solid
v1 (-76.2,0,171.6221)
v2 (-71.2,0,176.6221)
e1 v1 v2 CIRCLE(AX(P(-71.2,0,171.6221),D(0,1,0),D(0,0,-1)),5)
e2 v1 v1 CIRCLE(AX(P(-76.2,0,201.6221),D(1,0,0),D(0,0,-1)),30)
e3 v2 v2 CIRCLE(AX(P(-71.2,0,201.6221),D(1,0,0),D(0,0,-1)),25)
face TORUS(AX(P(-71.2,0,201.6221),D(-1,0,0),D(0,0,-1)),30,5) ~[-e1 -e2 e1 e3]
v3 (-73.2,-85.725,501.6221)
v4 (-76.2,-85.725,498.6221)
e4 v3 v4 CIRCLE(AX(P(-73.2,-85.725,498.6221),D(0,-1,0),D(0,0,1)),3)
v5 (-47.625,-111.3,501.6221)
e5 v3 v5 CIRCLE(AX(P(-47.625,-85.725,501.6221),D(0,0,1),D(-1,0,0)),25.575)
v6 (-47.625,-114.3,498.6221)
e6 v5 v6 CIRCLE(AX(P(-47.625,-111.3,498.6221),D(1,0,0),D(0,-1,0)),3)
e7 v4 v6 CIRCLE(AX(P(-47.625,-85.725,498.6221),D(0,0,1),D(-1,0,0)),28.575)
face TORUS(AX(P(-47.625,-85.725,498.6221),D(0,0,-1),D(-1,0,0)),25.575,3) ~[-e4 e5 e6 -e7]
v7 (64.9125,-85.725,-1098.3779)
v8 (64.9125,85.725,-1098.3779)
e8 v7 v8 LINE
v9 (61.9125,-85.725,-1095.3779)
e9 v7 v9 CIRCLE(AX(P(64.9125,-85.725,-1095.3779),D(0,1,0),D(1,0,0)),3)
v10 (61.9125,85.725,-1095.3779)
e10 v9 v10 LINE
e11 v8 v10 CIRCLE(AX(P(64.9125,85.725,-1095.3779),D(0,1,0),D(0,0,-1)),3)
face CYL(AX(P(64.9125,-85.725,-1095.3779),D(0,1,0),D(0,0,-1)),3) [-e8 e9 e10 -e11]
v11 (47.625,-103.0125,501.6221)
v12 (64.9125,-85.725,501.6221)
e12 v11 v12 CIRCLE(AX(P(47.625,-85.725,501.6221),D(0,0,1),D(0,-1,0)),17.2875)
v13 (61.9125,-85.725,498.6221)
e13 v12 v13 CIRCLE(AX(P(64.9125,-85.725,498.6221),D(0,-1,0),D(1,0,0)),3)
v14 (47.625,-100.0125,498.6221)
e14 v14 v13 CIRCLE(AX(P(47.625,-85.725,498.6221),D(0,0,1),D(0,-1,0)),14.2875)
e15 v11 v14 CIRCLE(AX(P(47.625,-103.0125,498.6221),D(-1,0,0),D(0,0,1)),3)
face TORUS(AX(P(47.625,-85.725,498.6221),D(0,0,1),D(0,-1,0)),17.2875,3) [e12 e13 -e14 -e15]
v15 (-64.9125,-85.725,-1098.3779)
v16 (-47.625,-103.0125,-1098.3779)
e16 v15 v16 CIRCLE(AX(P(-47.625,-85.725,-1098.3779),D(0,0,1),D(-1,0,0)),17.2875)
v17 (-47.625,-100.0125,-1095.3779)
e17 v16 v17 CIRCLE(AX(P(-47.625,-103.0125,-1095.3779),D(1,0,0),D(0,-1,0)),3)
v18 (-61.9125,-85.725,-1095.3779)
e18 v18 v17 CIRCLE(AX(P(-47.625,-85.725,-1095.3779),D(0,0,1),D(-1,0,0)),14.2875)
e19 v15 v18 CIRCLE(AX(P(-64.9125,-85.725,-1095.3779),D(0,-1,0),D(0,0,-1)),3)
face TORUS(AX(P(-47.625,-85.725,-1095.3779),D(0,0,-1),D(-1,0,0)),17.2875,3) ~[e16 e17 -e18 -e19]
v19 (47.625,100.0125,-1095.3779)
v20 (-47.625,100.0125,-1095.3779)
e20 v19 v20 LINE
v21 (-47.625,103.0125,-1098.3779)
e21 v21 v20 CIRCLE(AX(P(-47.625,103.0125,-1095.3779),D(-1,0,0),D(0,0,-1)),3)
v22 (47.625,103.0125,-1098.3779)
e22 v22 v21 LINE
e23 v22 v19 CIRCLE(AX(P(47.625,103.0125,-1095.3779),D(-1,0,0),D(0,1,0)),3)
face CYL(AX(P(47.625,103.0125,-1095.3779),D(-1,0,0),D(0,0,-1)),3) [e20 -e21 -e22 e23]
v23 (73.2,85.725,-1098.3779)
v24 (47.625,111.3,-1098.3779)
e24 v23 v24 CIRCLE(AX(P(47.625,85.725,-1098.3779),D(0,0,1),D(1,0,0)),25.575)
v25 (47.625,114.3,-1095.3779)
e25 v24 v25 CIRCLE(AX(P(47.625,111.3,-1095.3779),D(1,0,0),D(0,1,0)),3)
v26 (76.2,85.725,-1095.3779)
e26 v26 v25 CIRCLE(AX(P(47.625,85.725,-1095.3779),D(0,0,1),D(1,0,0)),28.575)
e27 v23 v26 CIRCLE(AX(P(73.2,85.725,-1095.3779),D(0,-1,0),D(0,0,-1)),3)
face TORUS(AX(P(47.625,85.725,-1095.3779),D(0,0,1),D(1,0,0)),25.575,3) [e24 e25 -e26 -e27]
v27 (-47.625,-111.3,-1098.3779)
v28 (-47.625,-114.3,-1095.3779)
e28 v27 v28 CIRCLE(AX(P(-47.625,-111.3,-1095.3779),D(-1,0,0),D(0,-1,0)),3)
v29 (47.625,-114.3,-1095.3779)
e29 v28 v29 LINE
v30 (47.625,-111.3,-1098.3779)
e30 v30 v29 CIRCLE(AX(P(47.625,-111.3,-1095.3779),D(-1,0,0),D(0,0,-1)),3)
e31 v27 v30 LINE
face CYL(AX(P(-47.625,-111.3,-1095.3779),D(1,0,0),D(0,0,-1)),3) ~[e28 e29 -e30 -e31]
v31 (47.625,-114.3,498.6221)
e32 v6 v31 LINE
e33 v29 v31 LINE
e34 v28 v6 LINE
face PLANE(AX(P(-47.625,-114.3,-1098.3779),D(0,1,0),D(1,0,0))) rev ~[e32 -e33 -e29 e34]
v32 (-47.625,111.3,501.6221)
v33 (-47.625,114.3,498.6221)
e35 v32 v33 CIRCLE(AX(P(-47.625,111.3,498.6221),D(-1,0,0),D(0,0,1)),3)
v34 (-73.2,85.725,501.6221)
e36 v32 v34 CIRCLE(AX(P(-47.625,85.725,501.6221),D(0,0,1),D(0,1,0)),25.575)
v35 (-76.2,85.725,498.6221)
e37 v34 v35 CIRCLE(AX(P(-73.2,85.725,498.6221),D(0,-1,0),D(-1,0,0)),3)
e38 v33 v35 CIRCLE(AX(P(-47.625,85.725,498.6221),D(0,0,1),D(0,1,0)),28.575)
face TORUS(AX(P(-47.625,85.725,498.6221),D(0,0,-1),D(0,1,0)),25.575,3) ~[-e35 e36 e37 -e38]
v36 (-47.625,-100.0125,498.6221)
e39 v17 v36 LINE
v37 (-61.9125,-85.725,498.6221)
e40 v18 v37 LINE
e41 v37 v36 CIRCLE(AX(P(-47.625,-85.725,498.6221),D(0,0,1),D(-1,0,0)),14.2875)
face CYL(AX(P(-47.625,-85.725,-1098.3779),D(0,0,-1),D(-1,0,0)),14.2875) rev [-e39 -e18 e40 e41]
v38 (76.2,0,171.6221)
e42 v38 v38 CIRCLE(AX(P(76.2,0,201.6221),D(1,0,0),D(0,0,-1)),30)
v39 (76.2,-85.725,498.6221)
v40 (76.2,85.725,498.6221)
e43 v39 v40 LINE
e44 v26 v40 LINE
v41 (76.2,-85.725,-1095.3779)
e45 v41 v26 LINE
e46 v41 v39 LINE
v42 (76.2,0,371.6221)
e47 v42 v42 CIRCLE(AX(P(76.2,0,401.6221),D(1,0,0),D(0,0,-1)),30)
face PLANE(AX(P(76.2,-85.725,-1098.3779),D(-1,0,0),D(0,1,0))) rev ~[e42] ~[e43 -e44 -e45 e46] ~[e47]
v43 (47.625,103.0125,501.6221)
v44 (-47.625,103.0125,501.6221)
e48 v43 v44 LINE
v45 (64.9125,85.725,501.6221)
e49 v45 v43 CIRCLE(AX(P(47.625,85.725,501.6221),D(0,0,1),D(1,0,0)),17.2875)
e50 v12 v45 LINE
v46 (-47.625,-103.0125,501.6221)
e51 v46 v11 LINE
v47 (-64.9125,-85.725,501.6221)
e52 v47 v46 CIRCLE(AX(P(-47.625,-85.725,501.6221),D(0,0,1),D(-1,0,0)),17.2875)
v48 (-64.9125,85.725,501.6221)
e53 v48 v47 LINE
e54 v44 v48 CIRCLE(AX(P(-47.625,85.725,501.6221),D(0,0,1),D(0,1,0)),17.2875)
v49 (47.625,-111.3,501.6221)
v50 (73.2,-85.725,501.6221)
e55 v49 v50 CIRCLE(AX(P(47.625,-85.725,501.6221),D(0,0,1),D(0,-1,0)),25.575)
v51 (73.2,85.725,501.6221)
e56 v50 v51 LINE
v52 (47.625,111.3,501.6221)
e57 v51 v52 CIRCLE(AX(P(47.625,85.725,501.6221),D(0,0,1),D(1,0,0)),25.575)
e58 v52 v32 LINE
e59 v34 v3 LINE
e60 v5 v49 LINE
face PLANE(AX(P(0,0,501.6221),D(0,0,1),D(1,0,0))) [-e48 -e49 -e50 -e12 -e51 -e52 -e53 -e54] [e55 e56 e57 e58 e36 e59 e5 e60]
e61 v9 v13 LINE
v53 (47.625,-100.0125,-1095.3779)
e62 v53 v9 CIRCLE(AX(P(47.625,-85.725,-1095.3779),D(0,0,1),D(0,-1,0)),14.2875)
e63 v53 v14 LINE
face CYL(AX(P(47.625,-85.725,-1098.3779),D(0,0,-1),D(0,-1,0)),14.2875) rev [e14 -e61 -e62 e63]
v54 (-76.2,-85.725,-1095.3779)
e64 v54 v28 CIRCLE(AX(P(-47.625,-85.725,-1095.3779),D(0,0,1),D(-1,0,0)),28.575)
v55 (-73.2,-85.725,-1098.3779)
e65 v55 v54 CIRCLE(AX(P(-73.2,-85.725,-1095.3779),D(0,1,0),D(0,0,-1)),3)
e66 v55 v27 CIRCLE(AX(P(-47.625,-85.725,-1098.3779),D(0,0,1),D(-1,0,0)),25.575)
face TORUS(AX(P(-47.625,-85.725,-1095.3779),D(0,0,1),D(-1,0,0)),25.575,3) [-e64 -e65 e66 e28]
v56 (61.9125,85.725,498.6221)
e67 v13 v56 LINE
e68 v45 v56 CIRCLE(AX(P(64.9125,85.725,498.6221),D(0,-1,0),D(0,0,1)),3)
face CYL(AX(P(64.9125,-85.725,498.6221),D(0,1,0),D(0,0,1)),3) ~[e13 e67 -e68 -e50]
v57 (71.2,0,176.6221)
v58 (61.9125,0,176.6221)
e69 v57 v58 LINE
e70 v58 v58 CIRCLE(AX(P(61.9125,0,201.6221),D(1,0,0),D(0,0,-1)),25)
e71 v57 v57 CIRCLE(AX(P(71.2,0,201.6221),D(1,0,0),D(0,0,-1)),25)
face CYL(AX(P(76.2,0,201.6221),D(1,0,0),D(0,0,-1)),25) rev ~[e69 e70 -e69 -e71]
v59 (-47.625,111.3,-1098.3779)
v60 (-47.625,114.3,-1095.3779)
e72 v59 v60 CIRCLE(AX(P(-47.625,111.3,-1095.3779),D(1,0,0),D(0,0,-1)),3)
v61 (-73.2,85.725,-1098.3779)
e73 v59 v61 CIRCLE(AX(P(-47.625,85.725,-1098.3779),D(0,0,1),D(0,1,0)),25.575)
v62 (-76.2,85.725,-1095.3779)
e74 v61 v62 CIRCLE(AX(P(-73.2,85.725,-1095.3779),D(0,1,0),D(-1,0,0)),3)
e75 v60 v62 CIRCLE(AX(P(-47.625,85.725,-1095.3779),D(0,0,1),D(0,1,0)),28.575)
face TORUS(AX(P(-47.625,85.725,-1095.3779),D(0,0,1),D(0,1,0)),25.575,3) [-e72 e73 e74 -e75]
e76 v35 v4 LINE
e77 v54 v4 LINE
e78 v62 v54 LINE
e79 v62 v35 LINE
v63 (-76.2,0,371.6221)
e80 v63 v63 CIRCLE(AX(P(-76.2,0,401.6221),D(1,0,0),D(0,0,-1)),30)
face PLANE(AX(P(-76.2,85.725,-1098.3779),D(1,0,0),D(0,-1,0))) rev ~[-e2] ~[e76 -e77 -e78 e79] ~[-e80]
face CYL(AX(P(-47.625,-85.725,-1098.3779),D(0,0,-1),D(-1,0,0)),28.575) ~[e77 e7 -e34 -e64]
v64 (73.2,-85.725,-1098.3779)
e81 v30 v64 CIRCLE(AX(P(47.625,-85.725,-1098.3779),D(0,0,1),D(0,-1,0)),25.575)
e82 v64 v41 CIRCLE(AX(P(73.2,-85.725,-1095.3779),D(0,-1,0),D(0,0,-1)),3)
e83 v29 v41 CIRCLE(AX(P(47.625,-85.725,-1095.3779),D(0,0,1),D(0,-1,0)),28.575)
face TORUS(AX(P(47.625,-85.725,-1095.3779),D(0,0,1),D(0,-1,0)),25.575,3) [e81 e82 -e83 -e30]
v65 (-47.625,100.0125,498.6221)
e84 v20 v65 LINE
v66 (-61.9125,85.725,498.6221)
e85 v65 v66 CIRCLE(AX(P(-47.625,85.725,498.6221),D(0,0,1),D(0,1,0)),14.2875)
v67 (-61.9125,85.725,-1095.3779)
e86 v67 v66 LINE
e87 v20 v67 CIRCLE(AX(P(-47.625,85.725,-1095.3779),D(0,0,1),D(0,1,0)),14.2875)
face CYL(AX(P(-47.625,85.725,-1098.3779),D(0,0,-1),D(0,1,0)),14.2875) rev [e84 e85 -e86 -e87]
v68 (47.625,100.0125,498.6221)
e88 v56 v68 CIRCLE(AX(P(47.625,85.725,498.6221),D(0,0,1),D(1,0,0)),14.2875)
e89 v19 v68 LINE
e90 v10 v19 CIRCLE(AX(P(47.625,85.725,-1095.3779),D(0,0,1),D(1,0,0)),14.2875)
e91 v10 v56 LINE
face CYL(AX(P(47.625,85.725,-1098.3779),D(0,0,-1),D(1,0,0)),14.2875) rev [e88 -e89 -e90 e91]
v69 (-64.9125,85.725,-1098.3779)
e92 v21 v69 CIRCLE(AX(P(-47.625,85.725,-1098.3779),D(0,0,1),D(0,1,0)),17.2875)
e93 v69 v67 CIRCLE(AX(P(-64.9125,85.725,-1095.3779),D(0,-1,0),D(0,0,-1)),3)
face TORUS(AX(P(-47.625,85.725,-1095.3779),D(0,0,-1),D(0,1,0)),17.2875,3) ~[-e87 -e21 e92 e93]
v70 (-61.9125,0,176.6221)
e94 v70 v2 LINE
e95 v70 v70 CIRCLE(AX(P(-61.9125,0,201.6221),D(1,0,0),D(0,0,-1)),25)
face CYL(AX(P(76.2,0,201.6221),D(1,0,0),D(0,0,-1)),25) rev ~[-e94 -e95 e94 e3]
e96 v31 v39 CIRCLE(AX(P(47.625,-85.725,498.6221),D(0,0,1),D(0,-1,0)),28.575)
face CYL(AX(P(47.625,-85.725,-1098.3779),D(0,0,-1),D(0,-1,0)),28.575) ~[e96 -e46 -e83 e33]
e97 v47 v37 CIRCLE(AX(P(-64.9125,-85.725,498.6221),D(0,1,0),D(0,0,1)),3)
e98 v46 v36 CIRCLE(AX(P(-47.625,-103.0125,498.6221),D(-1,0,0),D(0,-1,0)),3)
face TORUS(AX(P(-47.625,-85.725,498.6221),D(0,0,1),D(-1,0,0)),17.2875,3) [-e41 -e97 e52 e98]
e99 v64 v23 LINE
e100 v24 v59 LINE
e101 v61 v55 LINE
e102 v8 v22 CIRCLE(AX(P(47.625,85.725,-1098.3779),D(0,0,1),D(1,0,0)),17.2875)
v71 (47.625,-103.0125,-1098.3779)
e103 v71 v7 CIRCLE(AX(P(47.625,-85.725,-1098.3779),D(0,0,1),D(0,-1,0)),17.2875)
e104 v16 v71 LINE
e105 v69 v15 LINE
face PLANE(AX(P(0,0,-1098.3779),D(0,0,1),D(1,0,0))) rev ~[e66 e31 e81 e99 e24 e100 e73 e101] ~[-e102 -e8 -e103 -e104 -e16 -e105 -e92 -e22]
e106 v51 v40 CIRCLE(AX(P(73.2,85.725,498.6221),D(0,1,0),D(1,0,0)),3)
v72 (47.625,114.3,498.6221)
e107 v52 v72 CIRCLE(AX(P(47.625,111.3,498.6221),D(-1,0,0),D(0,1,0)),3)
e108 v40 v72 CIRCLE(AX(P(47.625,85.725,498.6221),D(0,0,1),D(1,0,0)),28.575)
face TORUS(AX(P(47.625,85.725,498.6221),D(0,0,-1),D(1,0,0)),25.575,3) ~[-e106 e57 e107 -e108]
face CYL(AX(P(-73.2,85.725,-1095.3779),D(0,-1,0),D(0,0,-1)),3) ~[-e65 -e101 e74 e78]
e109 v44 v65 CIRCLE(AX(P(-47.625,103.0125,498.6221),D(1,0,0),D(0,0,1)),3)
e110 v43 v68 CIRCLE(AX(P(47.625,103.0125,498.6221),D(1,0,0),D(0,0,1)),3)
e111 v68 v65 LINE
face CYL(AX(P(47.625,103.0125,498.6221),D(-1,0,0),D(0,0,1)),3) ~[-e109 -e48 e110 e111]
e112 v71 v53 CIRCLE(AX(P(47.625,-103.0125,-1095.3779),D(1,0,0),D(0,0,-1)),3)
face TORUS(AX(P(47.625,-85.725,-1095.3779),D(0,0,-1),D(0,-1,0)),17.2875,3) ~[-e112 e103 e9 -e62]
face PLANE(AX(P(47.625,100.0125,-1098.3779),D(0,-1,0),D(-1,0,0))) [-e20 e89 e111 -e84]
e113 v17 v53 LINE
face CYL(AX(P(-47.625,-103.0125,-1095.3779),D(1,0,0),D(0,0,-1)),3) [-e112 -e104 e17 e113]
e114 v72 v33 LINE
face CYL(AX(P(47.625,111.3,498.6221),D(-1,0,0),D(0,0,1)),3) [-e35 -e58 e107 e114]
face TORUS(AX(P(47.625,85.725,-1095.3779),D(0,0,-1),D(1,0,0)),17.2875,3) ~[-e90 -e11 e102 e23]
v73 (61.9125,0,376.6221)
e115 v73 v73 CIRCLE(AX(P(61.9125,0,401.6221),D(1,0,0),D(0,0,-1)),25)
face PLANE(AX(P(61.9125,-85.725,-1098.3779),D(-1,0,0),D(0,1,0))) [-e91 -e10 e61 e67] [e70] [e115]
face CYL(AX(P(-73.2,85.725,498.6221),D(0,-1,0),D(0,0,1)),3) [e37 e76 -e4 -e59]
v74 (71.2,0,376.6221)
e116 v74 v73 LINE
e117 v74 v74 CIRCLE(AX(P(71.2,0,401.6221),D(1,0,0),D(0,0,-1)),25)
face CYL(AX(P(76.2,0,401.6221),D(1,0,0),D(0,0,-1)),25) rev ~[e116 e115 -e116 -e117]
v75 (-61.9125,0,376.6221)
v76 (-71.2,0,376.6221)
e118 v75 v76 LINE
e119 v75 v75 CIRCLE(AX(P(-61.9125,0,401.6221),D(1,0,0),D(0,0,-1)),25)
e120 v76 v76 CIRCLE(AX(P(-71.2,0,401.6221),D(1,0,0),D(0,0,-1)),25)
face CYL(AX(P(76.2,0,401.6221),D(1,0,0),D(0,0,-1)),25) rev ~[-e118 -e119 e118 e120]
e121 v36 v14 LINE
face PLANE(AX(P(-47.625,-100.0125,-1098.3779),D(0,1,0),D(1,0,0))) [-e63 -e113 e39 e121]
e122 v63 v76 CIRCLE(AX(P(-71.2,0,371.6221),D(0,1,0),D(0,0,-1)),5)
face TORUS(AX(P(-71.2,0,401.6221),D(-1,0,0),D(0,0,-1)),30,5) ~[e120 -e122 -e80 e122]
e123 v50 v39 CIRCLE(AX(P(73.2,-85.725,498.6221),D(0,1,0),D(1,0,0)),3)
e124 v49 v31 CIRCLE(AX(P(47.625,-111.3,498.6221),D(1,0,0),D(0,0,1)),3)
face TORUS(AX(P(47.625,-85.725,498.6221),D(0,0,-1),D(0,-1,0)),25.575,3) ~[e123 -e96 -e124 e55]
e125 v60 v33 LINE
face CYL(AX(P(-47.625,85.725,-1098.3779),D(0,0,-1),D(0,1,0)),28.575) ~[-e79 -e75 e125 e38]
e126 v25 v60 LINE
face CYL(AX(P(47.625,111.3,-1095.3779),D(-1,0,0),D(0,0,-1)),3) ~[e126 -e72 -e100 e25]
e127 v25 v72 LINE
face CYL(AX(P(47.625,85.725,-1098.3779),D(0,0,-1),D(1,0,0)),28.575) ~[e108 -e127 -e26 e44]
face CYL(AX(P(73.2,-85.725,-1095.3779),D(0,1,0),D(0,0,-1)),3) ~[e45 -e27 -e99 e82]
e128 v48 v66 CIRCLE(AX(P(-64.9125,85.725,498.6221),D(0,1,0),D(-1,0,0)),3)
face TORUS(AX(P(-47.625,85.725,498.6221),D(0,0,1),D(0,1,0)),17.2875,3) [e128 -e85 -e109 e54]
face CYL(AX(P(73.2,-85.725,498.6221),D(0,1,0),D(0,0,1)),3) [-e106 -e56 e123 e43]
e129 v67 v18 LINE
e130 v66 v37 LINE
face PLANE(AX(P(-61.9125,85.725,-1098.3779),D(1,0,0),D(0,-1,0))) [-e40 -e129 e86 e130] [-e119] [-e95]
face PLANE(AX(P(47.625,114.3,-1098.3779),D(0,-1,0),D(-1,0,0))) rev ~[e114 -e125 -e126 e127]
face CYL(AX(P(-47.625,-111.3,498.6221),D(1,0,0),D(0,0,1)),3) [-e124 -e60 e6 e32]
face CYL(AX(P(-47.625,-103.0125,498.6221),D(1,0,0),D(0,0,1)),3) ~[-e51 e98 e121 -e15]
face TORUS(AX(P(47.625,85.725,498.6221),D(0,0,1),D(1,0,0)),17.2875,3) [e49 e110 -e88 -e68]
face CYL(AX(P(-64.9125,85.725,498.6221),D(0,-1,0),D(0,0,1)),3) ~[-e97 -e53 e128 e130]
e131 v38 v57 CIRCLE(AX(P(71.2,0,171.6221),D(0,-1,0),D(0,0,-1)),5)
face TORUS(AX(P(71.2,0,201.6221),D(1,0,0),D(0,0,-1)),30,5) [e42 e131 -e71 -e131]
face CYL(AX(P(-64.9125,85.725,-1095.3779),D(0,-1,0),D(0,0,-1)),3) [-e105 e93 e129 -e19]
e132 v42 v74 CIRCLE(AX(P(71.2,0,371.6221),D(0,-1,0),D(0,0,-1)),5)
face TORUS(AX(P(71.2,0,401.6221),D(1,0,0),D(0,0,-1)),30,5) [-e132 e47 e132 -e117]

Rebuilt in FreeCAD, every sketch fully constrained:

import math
import FreeCAD as App
import Part
import Sketcher
Q = App.Units.Quantity


def edges_at(feature, points):
    """Names of the edges that pass closest to the given points."""
    edges = feature.Shape.Edges
    near = lambda p: min(range(len(edges)), key=lambda i: edges[i].distToShape(Part.Vertex(*p))[0])
    return sorted({f"Edge{near(p) + 1}" for p in points})

doc = App.newDocument("Part")
body = doc.addObject("PartDesign::Body", "Body")

sketch1 = body.newObject("Sketcher::SketchObject", "Sketch")
sketch1.AttachmentSupport = (doc.getObject("XY_Plane"), [""])
sketch1.MapMode = "FlatFace"
sketch1.AttachmentOffset = App.Placement(App.Vector(0, 0, -1098.3779), App.Rotation())
sketch1.addGeometry([
    Part.LineSegment(App.Vector(-48, -114, 0), App.Vector(48, -114, 0)),
    Part.ArcOfCircle(Part.Circle(App.Vector(48, -86, 0), App.Vector(0, 0, 1), 29), math.radians(-90), math.radians(0)),
    Part.LineSegment(App.Vector(76, -86, 0), App.Vector(76, 86, 0)),
    Part.ArcOfCircle(Part.Circle(App.Vector(48, 86, 0), App.Vector(0, 0, 1), 29), math.radians(0), math.radians(90)),
    Part.LineSegment(App.Vector(48, 114, 0), App.Vector(-48, 114, 0)),
    Part.ArcOfCircle(Part.Circle(App.Vector(-48, 86, 0), App.Vector(0, 0, 1), 29), math.radians(90), math.radians(180)),
    Part.LineSegment(App.Vector(-76, 86, 0), App.Vector(-76, -86, 0)),
    Part.ArcOfCircle(Part.Circle(App.Vector(-48, -86, 0), App.Vector(0, 0, 1), 29), math.radians(-180), math.radians(-90)),
    Part.LineSegment(App.Vector(48, -100, 0), App.Vector(-48, -100, 0)),
    Part.ArcOfCircle(Part.Circle(App.Vector(-48, -86, 0), App.Vector(0, 0, 1), 14), math.radians(-180), math.radians(-90)),
    Part.LineSegment(App.Vector(-62, -86, 0), App.Vector(-62, 86, 0)),
    Part.ArcOfCircle(Part.Circle(App.Vector(-48, 86, 0), App.Vector(0, 0, 1), 14), math.radians(90), math.radians(180)),
    Part.LineSegment(App.Vector(-48, 100, 0), App.Vector(48, 100, 0)),
    Part.ArcOfCircle(Part.Circle(App.Vector(48, 86, 0), App.Vector(0, 0, 1), 14), math.radians(0), math.radians(90)),
    Part.LineSegment(App.Vector(62, 86, 0), App.Vector(62, -86, 0)),
    Part.ArcOfCircle(Part.Circle(App.Vector(48, -86, 0), App.Vector(0, 0, 1), 14), math.radians(-90), math.radians(0)),
], False)
sketch1.addConstraint([
    Sketcher.Constraint("Tangent", 0, 2, 1, 1),
    Sketcher.Constraint("Tangent", 1, 2, 2, 1),
    Sketcher.Constraint("Tangent", 2, 2, 3, 1),
    Sketcher.Constraint("Tangent", 3, 2, 4, 1),
    Sketcher.Constraint("Tangent", 4, 2, 5, 1),
    Sketcher.Constraint("Tangent", 5, 2, 6, 1),
    Sketcher.Constraint("Tangent", 6, 2, 7, 1),
    Sketcher.Constraint("Tangent", 7, 2, 0, 1),
    Sketcher.Constraint("Tangent", 8, 2, 9, 2),
    Sketcher.Constraint("Tangent", 9, 1, 10, 1),
    Sketcher.Constraint("Tangent", 10, 2, 11, 2),
    Sketcher.Constraint("Tangent", 11, 1, 12, 1),
    Sketcher.Constraint("Tangent", 12, 2, 13, 2),
    Sketcher.Constraint("Tangent", 13, 1, 14, 1),
    Sketcher.Constraint("Tangent", 14, 2, 15, 2),
    Sketcher.Constraint("Tangent", 15, 1, 8, 1),
    Sketcher.Constraint("Horizontal", 0),
    Sketcher.Constraint("Vertical", 2),
    Sketcher.Constraint("Horizontal", 4),
    Sketcher.Constraint("Vertical", 6),
    Sketcher.Constraint("Horizontal", 8),
    Sketcher.Constraint("Vertical", 10),
    Sketcher.Constraint("Horizontal", 12),
    Sketcher.Constraint("Vertical", 14),
    Sketcher.Constraint("Coincident", 9, 3, 7, 3),
    Sketcher.Constraint("Coincident", 11, 3, 5, 3),
    Sketcher.Constraint("Coincident", 13, 3, 3, 3),
    Sketcher.Constraint("Equal", 1, 3),
    Sketcher.Constraint("Equal", 3, 5),
    Sketcher.Constraint("Equal", 5, 7),
    Sketcher.Constraint("Equal", 13, 15),
    Sketcher.Constraint("Symmetric", 1, 3, 5, 3, -1, 1),
    Sketcher.Constraint("Radius", 1, Q("28.575 mm")),
    Sketcher.Constraint("DistanceX", 0, 1, 0, 2, Q("95.25 mm")),
    Sketcher.Constraint("DistanceY", 2, 1, 2, 2, Q("171.45 mm")),
    Sketcher.Constraint("Radius", 9, Q("14.2875 mm")),
])
pad1 = body.newObject("PartDesign::Pad", "Pad")
pad1.Profile = sketch1
pad1.Length = 1600

sketch2 = body.newObject("Sketcher::SketchObject", "Sketch001")
sketch2.AttachmentSupport = (doc.getObject("YZ_Plane"), [""])
sketch2.MapMode = "FlatFace"
sketch2.AttachmentOffset = App.Placement(App.Vector(0, 0, 76.2), App.Rotation())
sketch2.addGeometry([
    Part.Circle(App.Vector(0, 402, 0), App.Vector(0, 0, 1), 25),
    Part.Circle(App.Vector(0, 202, 0), App.Vector(0, 0, 1), 25),
], False)
sketch2.addConstraint([
    Sketcher.Constraint("Equal", 0, 1),
    Sketcher.Constraint("PointOnObject", 0, 3, -2),
    Sketcher.Constraint("PointOnObject", 1, 3, -2),
    Sketcher.Constraint("Diameter", 0, Q("50 mm")),
    Sketcher.Constraint("DistanceY", 1, 3, 0, 3, Q("200 mm")),
    Sketcher.Constraint("DistanceY", -1, 1, 0, 3, Q("401.6221 mm")),
])
pocket1 = body.newObject("PartDesign::Pocket", "Pocket")
pocket1.Profile = sketch2
pocket1.Type = "ThroughAll"
doc.recompute()

fillet = body.newObject("PartDesign::Fillet", "Fillet")
fillet.Base = (pocket1, edges_at(pocket1, [
    (-76.2, 0, 426.622),
    (76.2, 0, 426.622),
    (-76.2, 0, 226.622),
    (76.2, 0, 226.622),
]))
fillet.Radius = 5
doc.recompute()

fillet2 = body.newObject("PartDesign::Fillet", "Fillet001")
fillet2.Base = (fillet, edges_at(fillet, [
    (0, 100.013, 501.622),
    (57.728, 95.828, 501.622),
    (76.2, 0, -1098.378),
    (67.831, -105.931, -1098.378),
    (0, -114.3, -1098.378),
    (-67.831, -105.931, -1098.378),
    (-76.2, 0, -1098.378),
    (61.913, 0, 501.622),
    (-67.831, 105.931, -1098.378),
    (0, 114.3, -1098.378),
    (67.831, 105.931, -1098.378),
    (-61.913, 0, -1098.378),
    (-57.728, -95.828, -1098.378),
    (0, -100.013, -1098.378),
    (57.728, -95.828, -1098.378),
    (61.913, 0, -1098.378),
    (57.728, 95.828, -1098.378),
    (0, 100.013, -1098.378),
    (57.728, -95.828, 501.622),
    (-57.728, 95.828, -1098.378),
    (0, -100.013, 501.622),
    (-57.728, -95.828, 501.622),
    (-61.913, 0, 501.622),
    (67.831, 105.931, 501.622),
    (0, 114.3, 501.622),
    (-67.831, 105.931, 501.622),
    (-76.2, 0, 501.622),
    (-67.831, -105.931, 501.622),
    (0, -114.3, 501.622),
    (-57.728, 95.828, 501.622),
    (67.831, -105.931, 501.622),
    (76.2, 0, 501.622),
]))
fillet2.Radius = 3

doc.recompute()
